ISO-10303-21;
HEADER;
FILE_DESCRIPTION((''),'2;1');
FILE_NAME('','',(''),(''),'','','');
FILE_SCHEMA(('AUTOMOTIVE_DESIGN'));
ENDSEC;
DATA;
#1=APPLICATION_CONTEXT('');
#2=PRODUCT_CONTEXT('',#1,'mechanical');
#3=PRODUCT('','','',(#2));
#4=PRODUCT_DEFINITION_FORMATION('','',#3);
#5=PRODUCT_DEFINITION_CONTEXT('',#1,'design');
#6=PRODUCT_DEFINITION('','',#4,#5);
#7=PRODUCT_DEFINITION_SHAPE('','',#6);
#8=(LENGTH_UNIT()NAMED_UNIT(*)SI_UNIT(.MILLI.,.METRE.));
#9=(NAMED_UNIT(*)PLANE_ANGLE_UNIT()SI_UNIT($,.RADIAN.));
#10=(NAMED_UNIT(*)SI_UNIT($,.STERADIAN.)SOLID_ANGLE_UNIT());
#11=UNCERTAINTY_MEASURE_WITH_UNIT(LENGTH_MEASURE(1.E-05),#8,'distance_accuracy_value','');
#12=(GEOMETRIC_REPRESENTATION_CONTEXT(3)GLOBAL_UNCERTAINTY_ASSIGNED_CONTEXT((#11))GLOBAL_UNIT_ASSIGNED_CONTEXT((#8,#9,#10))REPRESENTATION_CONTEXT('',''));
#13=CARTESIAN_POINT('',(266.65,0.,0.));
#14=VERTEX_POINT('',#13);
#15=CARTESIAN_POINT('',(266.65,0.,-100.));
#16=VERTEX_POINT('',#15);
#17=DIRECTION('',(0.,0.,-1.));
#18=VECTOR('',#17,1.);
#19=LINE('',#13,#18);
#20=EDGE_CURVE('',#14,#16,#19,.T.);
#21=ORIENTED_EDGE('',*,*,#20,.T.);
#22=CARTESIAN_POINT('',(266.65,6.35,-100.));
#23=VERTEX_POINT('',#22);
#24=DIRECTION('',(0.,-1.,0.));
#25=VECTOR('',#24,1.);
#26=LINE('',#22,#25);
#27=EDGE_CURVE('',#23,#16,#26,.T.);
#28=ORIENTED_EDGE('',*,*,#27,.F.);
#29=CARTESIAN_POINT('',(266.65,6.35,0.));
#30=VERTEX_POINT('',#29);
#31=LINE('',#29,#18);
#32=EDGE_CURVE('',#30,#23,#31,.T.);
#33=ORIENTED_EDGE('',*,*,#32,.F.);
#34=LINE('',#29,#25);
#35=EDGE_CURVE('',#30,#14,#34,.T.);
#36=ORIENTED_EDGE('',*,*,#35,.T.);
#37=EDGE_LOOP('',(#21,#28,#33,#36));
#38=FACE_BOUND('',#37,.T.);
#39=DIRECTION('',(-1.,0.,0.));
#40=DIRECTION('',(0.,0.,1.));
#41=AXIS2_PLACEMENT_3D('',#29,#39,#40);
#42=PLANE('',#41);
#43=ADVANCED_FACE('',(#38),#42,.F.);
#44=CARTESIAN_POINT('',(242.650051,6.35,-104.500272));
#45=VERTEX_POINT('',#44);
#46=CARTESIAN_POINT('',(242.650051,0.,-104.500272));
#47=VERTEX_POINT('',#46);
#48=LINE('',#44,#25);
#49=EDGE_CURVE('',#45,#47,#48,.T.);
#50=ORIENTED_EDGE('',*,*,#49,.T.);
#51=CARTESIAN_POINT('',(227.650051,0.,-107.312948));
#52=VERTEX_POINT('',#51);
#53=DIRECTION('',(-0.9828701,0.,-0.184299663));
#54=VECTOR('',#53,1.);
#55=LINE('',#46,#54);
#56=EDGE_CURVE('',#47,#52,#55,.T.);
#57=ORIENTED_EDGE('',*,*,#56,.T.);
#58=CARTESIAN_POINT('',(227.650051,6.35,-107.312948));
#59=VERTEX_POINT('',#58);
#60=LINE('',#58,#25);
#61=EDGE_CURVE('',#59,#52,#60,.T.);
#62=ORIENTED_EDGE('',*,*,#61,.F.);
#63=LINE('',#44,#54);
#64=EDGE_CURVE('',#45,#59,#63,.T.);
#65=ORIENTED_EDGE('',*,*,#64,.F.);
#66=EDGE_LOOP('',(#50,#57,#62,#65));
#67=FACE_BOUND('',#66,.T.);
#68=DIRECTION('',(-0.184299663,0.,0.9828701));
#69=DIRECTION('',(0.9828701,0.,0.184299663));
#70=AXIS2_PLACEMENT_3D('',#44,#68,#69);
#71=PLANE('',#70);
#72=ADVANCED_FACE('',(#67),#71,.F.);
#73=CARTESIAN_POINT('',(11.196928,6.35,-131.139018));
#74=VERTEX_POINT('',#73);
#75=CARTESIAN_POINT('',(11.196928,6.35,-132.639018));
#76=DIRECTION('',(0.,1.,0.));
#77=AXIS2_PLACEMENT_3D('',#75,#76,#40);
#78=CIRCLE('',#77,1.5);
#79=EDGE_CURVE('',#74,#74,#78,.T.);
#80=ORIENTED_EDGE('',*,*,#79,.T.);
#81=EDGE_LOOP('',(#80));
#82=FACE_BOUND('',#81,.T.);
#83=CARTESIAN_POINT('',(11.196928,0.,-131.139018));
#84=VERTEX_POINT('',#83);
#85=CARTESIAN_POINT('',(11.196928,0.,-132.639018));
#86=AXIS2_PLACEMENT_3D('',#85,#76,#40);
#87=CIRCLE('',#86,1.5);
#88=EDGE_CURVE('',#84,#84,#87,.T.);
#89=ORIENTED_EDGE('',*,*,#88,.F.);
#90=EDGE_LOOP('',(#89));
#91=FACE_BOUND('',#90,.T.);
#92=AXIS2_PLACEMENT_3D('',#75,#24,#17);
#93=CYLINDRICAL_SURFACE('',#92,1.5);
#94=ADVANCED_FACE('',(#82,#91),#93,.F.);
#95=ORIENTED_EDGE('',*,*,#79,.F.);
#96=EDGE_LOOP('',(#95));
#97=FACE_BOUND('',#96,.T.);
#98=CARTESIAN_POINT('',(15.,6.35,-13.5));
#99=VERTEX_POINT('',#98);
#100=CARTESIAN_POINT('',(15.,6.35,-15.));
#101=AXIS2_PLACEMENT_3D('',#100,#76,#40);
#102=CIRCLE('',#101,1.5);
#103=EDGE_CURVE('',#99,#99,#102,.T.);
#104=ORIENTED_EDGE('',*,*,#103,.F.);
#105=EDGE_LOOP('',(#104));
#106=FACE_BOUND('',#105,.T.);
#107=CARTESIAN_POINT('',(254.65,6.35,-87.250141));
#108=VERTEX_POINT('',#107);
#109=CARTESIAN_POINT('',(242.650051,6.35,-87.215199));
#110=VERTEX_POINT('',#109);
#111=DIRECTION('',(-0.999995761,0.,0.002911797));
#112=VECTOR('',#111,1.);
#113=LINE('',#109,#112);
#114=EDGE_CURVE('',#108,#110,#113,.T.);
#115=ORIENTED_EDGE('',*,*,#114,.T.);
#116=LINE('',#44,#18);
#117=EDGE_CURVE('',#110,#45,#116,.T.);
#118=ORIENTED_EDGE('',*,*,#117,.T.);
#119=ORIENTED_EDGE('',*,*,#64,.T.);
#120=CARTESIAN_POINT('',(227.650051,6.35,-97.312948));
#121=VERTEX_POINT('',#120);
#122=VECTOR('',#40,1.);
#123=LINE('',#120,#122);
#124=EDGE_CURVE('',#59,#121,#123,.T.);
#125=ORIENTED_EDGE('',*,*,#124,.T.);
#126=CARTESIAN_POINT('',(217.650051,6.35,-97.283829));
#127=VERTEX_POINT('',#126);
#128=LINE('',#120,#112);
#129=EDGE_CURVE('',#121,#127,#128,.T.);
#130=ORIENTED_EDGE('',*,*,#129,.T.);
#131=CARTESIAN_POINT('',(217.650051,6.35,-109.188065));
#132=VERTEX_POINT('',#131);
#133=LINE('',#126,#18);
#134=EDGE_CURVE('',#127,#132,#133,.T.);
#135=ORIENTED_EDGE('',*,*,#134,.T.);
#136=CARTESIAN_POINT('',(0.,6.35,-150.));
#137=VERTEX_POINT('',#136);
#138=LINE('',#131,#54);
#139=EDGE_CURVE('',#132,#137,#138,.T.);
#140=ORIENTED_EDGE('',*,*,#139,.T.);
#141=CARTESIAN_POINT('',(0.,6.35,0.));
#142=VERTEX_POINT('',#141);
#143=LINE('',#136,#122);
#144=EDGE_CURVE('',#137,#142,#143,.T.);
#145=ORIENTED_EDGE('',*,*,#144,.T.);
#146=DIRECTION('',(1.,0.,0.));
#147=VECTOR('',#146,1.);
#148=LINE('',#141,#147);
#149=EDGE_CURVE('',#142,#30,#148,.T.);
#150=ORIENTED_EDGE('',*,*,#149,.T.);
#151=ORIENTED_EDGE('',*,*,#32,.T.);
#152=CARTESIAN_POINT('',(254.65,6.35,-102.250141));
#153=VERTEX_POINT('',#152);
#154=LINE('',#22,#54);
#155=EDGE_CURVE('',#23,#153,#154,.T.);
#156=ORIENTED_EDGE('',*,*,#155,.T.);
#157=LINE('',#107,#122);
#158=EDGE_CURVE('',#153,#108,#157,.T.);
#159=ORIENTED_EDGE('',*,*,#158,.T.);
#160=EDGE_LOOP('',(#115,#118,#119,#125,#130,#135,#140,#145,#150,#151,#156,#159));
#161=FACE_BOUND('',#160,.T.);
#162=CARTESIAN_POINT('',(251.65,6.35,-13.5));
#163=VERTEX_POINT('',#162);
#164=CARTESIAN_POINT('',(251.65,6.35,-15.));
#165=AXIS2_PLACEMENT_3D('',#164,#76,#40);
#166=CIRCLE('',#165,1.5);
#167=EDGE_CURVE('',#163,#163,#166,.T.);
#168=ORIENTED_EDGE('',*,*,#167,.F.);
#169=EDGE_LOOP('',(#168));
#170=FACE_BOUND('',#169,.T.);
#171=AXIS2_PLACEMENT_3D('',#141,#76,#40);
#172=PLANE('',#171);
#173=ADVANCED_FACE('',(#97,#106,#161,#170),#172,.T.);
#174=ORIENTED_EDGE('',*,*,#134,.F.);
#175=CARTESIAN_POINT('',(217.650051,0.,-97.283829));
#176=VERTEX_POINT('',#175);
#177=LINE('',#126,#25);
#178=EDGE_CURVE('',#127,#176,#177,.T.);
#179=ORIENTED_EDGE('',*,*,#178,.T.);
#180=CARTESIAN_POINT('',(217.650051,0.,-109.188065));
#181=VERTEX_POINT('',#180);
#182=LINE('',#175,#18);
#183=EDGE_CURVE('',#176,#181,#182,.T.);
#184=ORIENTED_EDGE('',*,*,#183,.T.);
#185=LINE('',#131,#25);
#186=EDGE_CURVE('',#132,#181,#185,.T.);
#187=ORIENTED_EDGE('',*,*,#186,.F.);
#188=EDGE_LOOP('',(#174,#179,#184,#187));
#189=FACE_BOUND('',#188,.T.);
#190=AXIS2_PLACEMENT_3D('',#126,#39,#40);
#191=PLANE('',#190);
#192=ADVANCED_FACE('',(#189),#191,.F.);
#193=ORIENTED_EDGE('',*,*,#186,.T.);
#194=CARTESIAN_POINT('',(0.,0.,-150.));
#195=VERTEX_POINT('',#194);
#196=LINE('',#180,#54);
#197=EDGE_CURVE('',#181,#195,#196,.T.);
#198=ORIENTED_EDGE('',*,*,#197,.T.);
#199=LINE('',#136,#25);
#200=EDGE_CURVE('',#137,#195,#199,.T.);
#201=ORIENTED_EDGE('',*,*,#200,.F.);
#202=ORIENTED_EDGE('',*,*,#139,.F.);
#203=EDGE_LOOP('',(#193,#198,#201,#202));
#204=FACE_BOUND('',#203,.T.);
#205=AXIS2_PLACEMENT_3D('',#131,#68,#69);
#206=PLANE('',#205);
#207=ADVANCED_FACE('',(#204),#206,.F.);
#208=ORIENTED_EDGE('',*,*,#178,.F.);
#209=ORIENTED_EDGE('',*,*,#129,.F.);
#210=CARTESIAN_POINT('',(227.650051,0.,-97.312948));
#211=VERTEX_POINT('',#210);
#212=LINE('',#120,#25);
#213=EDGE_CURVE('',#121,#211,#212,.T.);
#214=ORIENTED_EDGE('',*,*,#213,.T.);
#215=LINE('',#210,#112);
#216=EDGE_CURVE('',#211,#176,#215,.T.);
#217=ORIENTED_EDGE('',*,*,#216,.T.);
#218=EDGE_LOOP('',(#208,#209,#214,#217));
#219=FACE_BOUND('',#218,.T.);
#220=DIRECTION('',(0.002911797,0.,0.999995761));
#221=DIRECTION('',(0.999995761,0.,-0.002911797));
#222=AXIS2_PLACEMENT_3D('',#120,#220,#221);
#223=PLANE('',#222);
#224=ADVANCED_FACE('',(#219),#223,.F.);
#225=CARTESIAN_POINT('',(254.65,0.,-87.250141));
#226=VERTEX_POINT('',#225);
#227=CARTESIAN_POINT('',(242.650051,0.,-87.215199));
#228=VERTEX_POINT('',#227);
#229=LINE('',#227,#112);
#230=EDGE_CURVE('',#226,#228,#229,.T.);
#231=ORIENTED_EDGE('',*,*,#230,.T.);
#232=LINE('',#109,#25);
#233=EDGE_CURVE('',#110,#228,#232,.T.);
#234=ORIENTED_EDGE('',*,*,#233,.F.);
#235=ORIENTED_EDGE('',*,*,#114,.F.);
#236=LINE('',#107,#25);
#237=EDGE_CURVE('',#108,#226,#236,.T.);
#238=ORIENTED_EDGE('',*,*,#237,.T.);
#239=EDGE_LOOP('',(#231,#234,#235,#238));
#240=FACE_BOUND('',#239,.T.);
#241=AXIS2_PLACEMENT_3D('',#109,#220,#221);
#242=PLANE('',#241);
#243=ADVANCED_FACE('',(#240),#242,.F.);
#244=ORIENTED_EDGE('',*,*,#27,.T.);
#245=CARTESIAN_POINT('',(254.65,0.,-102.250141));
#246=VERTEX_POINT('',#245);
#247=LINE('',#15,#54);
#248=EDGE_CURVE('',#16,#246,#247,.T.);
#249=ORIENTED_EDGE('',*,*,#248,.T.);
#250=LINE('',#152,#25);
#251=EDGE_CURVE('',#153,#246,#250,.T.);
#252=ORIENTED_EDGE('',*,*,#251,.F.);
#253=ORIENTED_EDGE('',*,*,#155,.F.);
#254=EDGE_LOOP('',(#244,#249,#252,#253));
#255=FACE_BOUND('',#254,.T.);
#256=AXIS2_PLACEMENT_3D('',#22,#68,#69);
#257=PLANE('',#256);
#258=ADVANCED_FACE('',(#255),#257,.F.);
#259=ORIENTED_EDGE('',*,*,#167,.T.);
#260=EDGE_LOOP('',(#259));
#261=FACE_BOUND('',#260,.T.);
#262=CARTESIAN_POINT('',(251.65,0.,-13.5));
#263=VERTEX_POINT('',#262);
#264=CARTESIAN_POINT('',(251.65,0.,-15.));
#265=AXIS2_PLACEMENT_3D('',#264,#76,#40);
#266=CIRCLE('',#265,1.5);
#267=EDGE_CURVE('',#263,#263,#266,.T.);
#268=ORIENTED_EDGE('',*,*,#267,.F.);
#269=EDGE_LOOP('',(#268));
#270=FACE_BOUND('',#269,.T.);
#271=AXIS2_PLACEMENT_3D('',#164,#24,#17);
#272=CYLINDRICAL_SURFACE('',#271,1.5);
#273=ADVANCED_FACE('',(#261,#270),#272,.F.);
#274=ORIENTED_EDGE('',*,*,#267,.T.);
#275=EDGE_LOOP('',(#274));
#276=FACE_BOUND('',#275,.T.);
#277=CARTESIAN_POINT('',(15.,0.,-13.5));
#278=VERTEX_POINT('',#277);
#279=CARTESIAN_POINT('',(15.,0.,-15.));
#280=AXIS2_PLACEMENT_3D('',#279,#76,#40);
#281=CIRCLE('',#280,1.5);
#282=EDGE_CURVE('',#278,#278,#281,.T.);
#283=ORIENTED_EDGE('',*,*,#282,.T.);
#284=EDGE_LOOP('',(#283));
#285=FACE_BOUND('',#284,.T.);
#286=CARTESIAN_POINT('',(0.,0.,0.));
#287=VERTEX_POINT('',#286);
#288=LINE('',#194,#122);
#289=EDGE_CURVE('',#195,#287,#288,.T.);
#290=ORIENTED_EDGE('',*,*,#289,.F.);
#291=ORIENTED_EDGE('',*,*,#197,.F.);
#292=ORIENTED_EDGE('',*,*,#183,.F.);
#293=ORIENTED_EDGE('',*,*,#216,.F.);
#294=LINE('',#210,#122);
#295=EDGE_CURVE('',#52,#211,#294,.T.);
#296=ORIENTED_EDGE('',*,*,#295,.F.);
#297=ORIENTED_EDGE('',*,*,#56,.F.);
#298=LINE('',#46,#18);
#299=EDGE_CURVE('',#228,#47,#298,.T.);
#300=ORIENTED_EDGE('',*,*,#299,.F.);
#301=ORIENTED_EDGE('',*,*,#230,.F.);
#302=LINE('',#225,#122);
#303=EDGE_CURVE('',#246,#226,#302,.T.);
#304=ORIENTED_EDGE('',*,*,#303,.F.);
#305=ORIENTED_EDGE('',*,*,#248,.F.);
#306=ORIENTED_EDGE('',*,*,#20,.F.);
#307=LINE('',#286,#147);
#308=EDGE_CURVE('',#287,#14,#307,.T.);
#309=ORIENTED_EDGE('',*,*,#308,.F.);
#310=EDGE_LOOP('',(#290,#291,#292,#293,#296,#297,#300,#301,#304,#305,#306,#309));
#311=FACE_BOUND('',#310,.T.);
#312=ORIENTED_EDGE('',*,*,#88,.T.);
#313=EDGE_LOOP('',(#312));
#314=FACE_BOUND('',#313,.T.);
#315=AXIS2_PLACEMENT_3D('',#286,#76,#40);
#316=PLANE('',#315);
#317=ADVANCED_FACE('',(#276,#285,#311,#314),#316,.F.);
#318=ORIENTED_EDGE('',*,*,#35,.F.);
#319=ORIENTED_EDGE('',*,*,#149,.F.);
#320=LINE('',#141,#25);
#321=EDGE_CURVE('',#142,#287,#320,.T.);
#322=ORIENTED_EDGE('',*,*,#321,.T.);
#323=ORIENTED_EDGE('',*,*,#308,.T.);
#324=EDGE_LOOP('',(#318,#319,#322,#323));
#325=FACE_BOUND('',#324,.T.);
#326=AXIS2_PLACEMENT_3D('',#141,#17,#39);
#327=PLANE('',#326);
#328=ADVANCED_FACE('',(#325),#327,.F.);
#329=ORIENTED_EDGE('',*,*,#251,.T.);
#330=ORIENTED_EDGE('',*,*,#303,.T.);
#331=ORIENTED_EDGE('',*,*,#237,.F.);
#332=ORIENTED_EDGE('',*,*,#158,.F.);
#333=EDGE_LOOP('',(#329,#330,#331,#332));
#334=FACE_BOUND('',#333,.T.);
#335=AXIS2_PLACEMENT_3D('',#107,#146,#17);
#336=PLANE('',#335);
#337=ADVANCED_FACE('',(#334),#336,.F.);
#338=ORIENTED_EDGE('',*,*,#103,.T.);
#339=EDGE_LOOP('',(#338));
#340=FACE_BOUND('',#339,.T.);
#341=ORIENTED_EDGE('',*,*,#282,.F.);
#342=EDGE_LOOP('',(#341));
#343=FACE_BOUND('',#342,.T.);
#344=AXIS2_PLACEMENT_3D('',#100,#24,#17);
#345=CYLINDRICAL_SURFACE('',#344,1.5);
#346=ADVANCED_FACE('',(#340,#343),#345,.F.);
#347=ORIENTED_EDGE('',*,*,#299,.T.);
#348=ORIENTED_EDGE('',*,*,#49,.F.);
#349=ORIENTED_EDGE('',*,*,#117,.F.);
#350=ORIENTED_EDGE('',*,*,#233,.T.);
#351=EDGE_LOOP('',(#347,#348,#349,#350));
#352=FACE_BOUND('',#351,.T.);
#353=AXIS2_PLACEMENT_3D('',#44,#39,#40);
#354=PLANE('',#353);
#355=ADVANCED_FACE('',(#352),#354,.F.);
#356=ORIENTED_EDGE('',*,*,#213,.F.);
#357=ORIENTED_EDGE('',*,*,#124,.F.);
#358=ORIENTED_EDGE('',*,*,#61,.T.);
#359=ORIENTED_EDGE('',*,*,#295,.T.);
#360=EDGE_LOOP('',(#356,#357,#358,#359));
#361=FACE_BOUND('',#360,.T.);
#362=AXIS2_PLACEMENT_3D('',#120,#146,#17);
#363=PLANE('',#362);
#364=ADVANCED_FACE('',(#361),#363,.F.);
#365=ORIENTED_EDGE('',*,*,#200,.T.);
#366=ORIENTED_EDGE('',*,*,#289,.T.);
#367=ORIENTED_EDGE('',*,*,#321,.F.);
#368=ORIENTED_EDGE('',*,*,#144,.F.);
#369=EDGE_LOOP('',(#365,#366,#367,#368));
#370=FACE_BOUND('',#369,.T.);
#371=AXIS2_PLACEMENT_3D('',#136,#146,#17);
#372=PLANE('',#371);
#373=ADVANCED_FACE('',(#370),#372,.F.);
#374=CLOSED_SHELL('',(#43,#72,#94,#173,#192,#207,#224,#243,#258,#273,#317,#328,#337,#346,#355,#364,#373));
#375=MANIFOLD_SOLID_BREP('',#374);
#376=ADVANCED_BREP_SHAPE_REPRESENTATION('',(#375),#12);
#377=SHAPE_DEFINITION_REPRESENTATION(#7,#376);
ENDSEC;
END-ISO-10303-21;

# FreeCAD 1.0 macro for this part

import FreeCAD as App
import Part
import Sketcher

V = App.Vector
Q = App.Units.Quantity


def add_polygon(sketch, points):
    """Adds a closed chain of lines whose ends are joined by coincident constraints."""
    first, n = sketch.GeometryCount, len(points)
    for a, b in zip(points, points[1:] + points[:1]):
        sketch.addGeometry(Part.LineSegment(App.Vector(*a, 0), App.Vector(*b, 0)), False)
    for i in range(n):
        sketch.addConstraint(Sketcher.Constraint("Coincident", first + i, 2, first + (i + 1) % n, 1))

doc = App.newDocument("Part")
params = doc.addObject("Spreadsheet::Sheet", "Params")
for row, (alias, value) in enumerate([
    ("sketch1_diameter", "3 mm"),
    ("sketch1_height", "100 mm"),
    ("sketch1_height2", "15 mm"),
    ("sketch1_height3", "10 mm"),
    ("sketch1_height4", "150 mm"),
    ("pad1_length", "6.35 mm"),
], start=1):
    params.set(f"A{row}", alias)
    params.set(f"B{row}", "=" + value)
    params.setAlias(f"B{row}", alias)

body = doc.addObject("PartDesign::Body", "Body")

sketch1 = body.newObject("Sketcher::SketchObject", "Sketch")
sketch1.AttachmentSupport = (doc.getObject("XZ_Plane"), [""])
sketch1.MapMode = "FlatFace"
add_polygon(sketch1, [(0, 0), (266.65, 0), (266.65, -100), (254.65, -102.250141), (254.65, -87.250141), (242.650051, -87.215199), (242.650051, -104.500272), (227.650051, -107.312948), (227.650051, -97.312948), (217.650051, -97.283829), (217.650051, -109.188065), (0, -150)])
sketch1.addGeometry(Part.Circle(V(15, -15, 0), V(0, 0, 1), 1.5), False)
sketch1.addGeometry(Part.Circle(V(251.65, -15, 0), V(0, 0, 1), 1.5), False)
sketch1.addGeometry(Part.Circle(V(11.196928, -132.639018, 0), V(0, 0, 1), 1.5), False)
sketch1.addConstraint([
    Sketcher.Constraint("Horizontal", 0),
    Sketcher.Constraint("Vertical", 1),
    Sketcher.Constraint("Vertical", 3),
    Sketcher.Constraint("Vertical", 5),
    Sketcher.Constraint("Vertical", 7),
    Sketcher.Constraint("Vertical", 9),
    Sketcher.Constraint("Vertical", 11),
    Sketcher.Constraint("Coincident", 11, 2, -1, 1),
    Sketcher.Constraint("Equal", 12, 13),
    Sketcher.Constraint("Equal", 13, 14),
    Sketcher.Constraint("Parallel", 2, 6),
    Sketcher.Constraint("Parallel", 4, 8),
    Sketcher.Constraint("Parallel", 6, 10),
    Sketcher.Constraint("Horizontal", 12, 3, 13, 3),
    Sketcher.Constraint("Diameter", 12, Q("3 mm")),
    Sketcher.Constraint("DistanceY", 1, 2, 1, 1, Q("100 mm")),
    Sketcher.Constraint("DistanceY", 3, 1, 3, 2, Q("15 mm")),
    Sketcher.Constraint("DistanceY", 7, 1, 7, 2, Q("10 mm")),
    Sketcher.Constraint("DistanceY", 11, 1, 11, 2, Q("150 mm")),
    Sketcher.Constraint("Distance", 4, Q("12 mm")),
    Sketcher.Constraint("DistanceX", -1, 1, 12, 3, Q("15 mm")),
    Sketcher.Constraint("DistanceY", 12, 3, -1, 1, Q("15 mm")),
    Sketcher.Constraint("DistanceX", 13, 3, 0, 2, Q("15 mm")),
    Sketcher.Constraint("DistanceX", 2, 2, 1, 2, Q("12 mm")),
    Sketcher.Constraint("DistanceX", 6, 2, 5, 2, Q("15 mm")),
    Sketcher.Constraint("DistanceX", 8, 2, 7, 2, Q("10 mm")),
    Sketcher.Constraint("DistanceX", 0, 1, 0, 2, Q("266.65 mm")),
    Sketcher.Constraint("DistanceY", 4, 2, -1, 1, Q("87.215199 mm")),
    Sketcher.Constraint("Distance", 2, Q("12.209141 mm")),
    Sketcher.Constraint("DistanceY", 5, 2, 5, 1, Q("17.285073 mm")),
    Sketcher.Constraint("DistanceY", 14, 3, -1, 1, Q("132.639018 mm")),
    Sketcher.Constraint("DistanceX", -1, 1, 14, 3, Q("11.196928 mm")),
])
sketch1.setExpression("Constraints[26]", "Params.sketch1_diameter")
sketch1.setExpression("Constraints[27]", "Params.sketch1_height")
sketch1.setExpression("Constraints[28]", "Params.sketch1_height2")
sketch1.setExpression("Constraints[29]", "Params.sketch1_height3")
sketch1.setExpression("Constraints[30]", "Params.sketch1_height4")
pad1 = body.newObject("PartDesign::Pad", "Pad")
pad1.Profile = sketch1
pad1.setExpression("Length", "Params.pad1_length")
pad1.Reversed = True

doc.recompute()
